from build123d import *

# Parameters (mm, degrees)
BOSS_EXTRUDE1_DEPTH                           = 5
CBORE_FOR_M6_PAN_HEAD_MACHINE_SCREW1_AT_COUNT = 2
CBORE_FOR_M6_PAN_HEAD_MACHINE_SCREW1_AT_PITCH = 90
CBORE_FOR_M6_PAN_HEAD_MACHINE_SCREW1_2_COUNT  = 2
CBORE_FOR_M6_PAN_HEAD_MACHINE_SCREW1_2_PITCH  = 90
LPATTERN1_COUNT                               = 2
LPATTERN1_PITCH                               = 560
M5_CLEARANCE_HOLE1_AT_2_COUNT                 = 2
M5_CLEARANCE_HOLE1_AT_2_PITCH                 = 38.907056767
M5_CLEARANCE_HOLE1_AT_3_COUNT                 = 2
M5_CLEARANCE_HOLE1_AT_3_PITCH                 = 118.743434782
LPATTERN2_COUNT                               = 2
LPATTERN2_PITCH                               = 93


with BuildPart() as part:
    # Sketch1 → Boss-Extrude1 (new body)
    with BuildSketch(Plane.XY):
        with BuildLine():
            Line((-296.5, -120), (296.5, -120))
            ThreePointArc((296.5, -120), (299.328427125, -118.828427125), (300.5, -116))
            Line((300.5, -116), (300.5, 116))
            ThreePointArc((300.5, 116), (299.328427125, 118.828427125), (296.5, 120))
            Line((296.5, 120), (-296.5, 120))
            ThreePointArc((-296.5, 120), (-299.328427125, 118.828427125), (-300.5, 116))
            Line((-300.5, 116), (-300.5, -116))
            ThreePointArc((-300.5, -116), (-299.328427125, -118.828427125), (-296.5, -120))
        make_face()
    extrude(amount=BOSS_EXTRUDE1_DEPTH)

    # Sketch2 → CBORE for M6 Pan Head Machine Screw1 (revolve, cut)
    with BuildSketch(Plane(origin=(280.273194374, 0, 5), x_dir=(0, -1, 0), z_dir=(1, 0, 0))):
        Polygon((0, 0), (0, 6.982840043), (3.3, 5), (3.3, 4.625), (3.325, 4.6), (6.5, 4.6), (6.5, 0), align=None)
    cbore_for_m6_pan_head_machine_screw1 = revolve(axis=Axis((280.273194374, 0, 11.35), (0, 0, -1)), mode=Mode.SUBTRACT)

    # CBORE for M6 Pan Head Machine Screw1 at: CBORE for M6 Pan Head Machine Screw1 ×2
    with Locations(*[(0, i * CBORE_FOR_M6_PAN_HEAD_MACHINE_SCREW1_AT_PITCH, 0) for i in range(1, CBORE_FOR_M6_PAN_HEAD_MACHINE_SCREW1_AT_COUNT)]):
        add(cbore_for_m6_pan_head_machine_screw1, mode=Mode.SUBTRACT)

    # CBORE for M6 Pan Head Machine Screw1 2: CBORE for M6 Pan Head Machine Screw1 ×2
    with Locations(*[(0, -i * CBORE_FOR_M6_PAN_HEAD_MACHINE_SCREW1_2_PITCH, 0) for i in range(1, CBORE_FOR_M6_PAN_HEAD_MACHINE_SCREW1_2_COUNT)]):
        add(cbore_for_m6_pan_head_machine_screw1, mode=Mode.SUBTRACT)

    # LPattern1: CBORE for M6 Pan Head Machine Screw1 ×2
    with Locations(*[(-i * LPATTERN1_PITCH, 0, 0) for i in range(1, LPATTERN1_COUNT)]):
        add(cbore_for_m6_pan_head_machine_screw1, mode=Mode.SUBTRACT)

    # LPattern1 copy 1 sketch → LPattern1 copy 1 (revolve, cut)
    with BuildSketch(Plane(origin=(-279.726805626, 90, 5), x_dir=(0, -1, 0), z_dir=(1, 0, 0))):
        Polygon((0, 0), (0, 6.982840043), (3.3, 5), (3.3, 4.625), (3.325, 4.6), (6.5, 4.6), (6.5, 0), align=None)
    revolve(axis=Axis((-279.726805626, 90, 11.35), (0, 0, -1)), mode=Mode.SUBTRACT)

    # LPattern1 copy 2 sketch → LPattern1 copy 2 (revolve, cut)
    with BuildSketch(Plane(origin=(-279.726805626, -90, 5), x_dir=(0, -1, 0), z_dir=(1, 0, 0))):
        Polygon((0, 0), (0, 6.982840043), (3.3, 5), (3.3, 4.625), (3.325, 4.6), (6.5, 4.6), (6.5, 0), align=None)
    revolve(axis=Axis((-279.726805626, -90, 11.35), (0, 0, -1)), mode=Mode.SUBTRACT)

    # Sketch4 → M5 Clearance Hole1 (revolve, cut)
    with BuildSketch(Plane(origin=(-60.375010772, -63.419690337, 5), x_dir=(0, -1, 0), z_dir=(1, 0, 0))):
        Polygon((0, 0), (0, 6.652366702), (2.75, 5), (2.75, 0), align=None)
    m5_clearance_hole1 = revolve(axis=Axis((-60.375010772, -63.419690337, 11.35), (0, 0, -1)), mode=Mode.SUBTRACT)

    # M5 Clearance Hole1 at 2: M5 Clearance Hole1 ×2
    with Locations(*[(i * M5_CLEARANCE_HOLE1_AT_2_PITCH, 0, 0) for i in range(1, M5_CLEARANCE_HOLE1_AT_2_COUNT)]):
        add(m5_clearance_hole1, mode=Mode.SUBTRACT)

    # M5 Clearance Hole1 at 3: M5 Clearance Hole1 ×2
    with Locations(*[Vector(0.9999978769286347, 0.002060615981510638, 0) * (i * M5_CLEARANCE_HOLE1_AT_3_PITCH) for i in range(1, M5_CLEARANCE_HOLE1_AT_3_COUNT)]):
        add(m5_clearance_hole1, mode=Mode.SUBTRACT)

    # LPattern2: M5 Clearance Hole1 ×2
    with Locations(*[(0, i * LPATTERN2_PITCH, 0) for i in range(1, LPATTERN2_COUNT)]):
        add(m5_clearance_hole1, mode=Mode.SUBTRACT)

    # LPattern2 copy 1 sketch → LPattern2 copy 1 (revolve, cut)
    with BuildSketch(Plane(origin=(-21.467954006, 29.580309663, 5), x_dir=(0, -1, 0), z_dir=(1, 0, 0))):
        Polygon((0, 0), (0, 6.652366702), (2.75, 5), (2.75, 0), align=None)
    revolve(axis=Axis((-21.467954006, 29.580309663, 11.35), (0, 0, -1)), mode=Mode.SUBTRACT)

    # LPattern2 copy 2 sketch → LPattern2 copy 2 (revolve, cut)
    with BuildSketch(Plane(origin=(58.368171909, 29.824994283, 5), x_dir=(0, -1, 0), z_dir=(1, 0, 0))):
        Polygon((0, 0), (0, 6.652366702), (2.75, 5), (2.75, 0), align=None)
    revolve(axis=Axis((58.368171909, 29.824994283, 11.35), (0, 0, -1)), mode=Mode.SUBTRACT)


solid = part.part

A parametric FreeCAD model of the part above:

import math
import FreeCAD as App
import Part
import Sketcher

V = App.Vector
Q = App.Units.Quantity

doc = App.newDocument("Part")
params = doc.addObject("Spreadsheet::Sheet", "Params")
for row, (alias, value) in enumerate([
    ("sketch1_radius", "4 mm"),
    ("sketch1_width", "593 mm"),
    ("sketch1_height", "232 mm"),
    ("pad1_length", "5 mm"),
    ("sketch2_width", "6.5 mm"),
    ("sketch2_height", "4.6 mm"),
    ("groove_angle", "360 deg"),
    ("linearpattern_pitch", "90 mm"),
    ("linearpattern2_pitch", "90 mm"),
    ("linearpattern3_pitch", "560 mm"),
    ("sketch3_width", "6.5 mm"),
    ("sketch3_height", "4.6 mm"),
    ("groove2_angle", "360 deg"),
    ("sketch4_width", "6.5 mm"),
    ("sketch4_height", "4.6 mm"),
    ("groove3_angle", "360 deg"),
    ("sketch5_height", "5 mm"),
    ("sketch5_width", "2.75 mm"),
    ("groove4_angle", "360 deg"),
    ("linearpattern4_pitch", "38.907057 mm"),
    ("linearpattern5_pitch", "118.743435 mm"),
    ("linearpattern6_pitch", "93 mm"),
    ("sketch6_height", "5 mm"),
    ("sketch6_width", "2.75 mm"),
    ("groove5_angle", "360 deg"),
    ("sketch7_height", "5 mm"),
    ("sketch7_width", "2.75 mm"),
    ("groove6_angle", "360 deg"),
], start=1):
    params.set(f"A{row}", alias)
    params.set(f"B{row}", "=" + value)
    params.setAlias(f"B{row}", alias)

body = doc.addObject("PartDesign::Body", "Body")

# Sketch on XY plane
sketch1 = doc.addObject("Sketcher::SketchObject", "Sketch")
body.addObject(sketch1)
sketch1.AttachmentSupport = (doc.XY_Plane, [""])
sketch1.MapMode = "FlatFace"
sketch1.addGeometry(Part.LineSegment(V(-296.5, -120, 0), V(296.5, -120, 0)), False)
sketch1.addGeometry(Part.ArcOfCircle(Part.Circle(V(296.5, -116, 0), V(0, 0, 1), 4), math.radians(-90), math.radians(0)), False)
sketch1.addGeometry(Part.LineSegment(V(300.5, -116, 0), V(300.5, 116, 0)), False)
sketch1.addGeometry(Part.ArcOfCircle(Part.Circle(V(296.5, 116, 0), V(0, 0, 1), 4), math.radians(0), math.radians(90)), False)
sketch1.addGeometry(Part.LineSegment(V(296.5, 120, 0), V(-296.5, 120, 0)), False)
sketch1.addGeometry(Part.ArcOfCircle(Part.Circle(V(-296.5, 116, 0), V(0, 0, 1), 4), math.radians(90), math.radians(180)), False)
sketch1.addGeometry(Part.LineSegment(V(-300.5, 116, 0), V(-300.5, -116, 0)), False)
sketch1.addGeometry(Part.ArcOfCircle(Part.Circle(V(-296.5, -116, 0), V(0, 0, 1), 4), math.radians(180), math.radians(270)), False)
sketch1.addConstraint(Sketcher.Constraint("Tangent", 0, 2, 1, 1))
sketch1.addConstraint(Sketcher.Constraint("Tangent", 1, 2, 2, 1))
sketch1.addConstraint(Sketcher.Constraint("Tangent", 2, 2, 3, 1))
sketch1.addConstraint(Sketcher.Constraint("Tangent", 3, 2, 4, 1))
sketch1.addConstraint(Sketcher.Constraint("Tangent", 4, 2, 5, 1))
sketch1.addConstraint(Sketcher.Constraint("Tangent", 5, 2, 6, 1))
sketch1.addConstraint(Sketcher.Constraint("Tangent", 6, 2, 7, 1))
sketch1.addConstraint(Sketcher.Constraint("Tangent", 7, 2, 0, 1))
sketch1.addConstraint(Sketcher.Constraint("Horizontal", 0))
sketch1.addConstraint(Sketcher.Constraint("Vertical", 2))
sketch1.addConstraint(Sketcher.Constraint("Horizontal", 4))
sketch1.addConstraint(Sketcher.Constraint("Vertical", 6))
sketch1.addConstraint(Sketcher.Constraint("Equal", 1, 3))
sketch1.addConstraint(Sketcher.Constraint("Equal", 3, 5))
sketch1.addConstraint(Sketcher.Constraint("Equal", 5, 7))
sketch1.addConstraint(Sketcher.Constraint("Symmetric", 1, 3, 5, 3, -1, 1))
sketch1.addConstraint(Sketcher.Constraint("Radius", 1, 4.0))
sketch1.addConstraint(Sketcher.Constraint("DistanceX", 0, 1, 0, 2, 593.0))
sketch1.addConstraint(Sketcher.Constraint("DistanceY", 2, 1, 2, 2, 232.0))
sketch1.setExpression("Constraints[16]", "Params.sketch1_radius")
sketch1.setExpression("Constraints[17]", "Params.sketch1_width")
sketch1.setExpression("Constraints[18]", "Params.sketch1_height")
pad1 = doc.addObject("PartDesign::Pad", "Pad")
body.addObject(pad1)
pad1.Profile = sketch1
pad1.setExpression("Length", "Params.pad1_length")

# Sketch on YZ plane
sketch2 = doc.addObject("Sketcher::SketchObject", "Sketch001")
body.addObject(sketch2)
sketch2.AttachmentSupport = (doc.YZ_Plane, [""])
sketch2.MapMode = "FlatFace"
sketch2.AttachmentOffset = App.Placement(V(0, 0, 280.273194), App.Rotation())
sketch2.addGeometry(Part.LineSegment(V(0, -1.983, 0), V(0, 5, 0)), False)
sketch2.addGeometry(Part.LineSegment(V(0, 5, 0), V(-6.5, 5, 0)), False)
sketch2.addGeometry(Part.LineSegment(V(-6.5, 5, 0), V(-6.5, 0.4, 0)), False)
sketch2.addGeometry(Part.LineSegment(V(-6.5, 0.4, 0), V(-3.325, 0.4, 0)), False)
sketch2.addGeometry(Part.LineSegment(V(-3.325, 0.4, 0), V(-3.3, 0.375, 0)), False)
sketch2.addGeometry(Part.LineSegment(V(-3.3, 0.375, 0), V(-3.3, 0, 0)), False)
sketch2.addGeometry(Part.LineSegment(V(-3.3, 0, 0), V(0, -1.983, 0)), False)
sketch2.addConstraint(Sketcher.Constraint("Coincident", 0, 2, 1, 1))
sketch2.addConstraint(Sketcher.Constraint("Coincident", 1, 2, 2, 1))
sketch2.addConstraint(Sketcher.Constraint("Coincident", 2, 2, 3, 1))
sketch2.addConstraint(Sketcher.Constraint("Coincident", 3, 2, 4, 1))
sketch2.addConstraint(Sketcher.Constraint("Coincident", 4, 2, 5, 1))
sketch2.addConstraint(Sketcher.Constraint("Coincident", 5, 2, 6, 1))
sketch2.addConstraint(Sketcher.Constraint("Coincident", 6, 2, 0, 1))
sketch2.addConstraint(Sketcher.Constraint("Vertical", 0))
sketch2.addConstraint(Sketcher.Constraint("Horizontal", 1))
sketch2.addConstraint(Sketcher.Constraint("Vertical", 2))
sketch2.addConstraint(Sketcher.Constraint("Horizontal", 3))
sketch2.addConstraint(Sketcher.Constraint("Vertical", 5))
sketch2.addConstraint(Sketcher.Constraint("PointOnObject", 0, 2, -2))
sketch2.addConstraint(Sketcher.Constraint("PointOnObject", 5, 2, -1))
sketch2.addConstraint(Sketcher.Constraint("Angle", 4, Q("-45 deg")))
sketch2.addConstraint(Sketcher.Constraint("Angle", 6, Q("-31 deg")))
sketch2.addConstraint(Sketcher.Constraint("DistanceX", 1, 2, 1, 1, 6.5))
sketch2.addConstraint(Sketcher.Constraint("DistanceY", 2, 2, 2, 1, 4.6))
sketch2.addConstraint(Sketcher.Constraint("DistanceY", -1, 1, 0, 2, 5.0))
sketch2.addConstraint(Sketcher.Constraint("DistanceX", 4, 2, -1, 1, 3.3))
sketch2.addConstraint(Sketcher.Constraint("DistanceX", 3, 1, 3, 2, 3.175))
sketch2.setExpression("Constraints[16]", "Params.sketch2_width")
sketch2.setExpression("Constraints[17]", "Params.sketch2_height")
groove = doc.addObject("PartDesign::Groove", "Groove")
body.addObject(groove)
groove.Profile = sketch2
groove.ReferenceAxis = (sketch2, ["V_Axis"])
groove.setExpression("Angle", "Params.groove_angle")
doc.recompute()

linearpattern = doc.addObject("PartDesign::LinearPattern", "LinearPattern")
body.addObject(linearpattern)
linearpattern.Originals = [groove]
linearpattern.Direction = (doc.Y_Axis, [""])
linearpattern.Mode = "offset"
linearpattern.setExpression("Offset", "Params.linearpattern_pitch")
linearpattern.Occurrences = 2
body.Tip = linearpattern
doc.recompute()

linearpattern2 = doc.addObject("PartDesign::LinearPattern", "LinearPattern001")
body.addObject(linearpattern2)
linearpattern2.Originals = [groove]
linearpattern2.Direction = (doc.Y_Axis, [""])
linearpattern2.Mode = "offset"
linearpattern2.setExpression("Offset", "Params.linearpattern2_pitch")
linearpattern2.Occurrences = 2
linearpattern2.Reversed = True
body.Tip = linearpattern2
doc.recompute()

linearpattern3 = doc.addObject("PartDesign::LinearPattern", "LinearPattern002")
body.addObject(linearpattern3)
linearpattern3.Originals = [groove]
linearpattern3.Direction = (doc.X_Axis, [""])
linearpattern3.Mode = "offset"
linearpattern3.setExpression("Offset", "Params.linearpattern3_pitch")
linearpattern3.Occurrences = 2
linearpattern3.Reversed = True
body.Tip = linearpattern3

# Sketch on YZ plane
sketch3 = doc.addObject("Sketcher::SketchObject", "Sketch002")
body.addObject(sketch3)
sketch3.AttachmentSupport = (doc.YZ_Plane, [""])
sketch3.MapMode = "FlatFace"
sketch3.AttachmentOffset = App.Placement(V(0, 0, -279.726806), App.Rotation())
sketch3.addGeometry(Part.LineSegment(V(90, -1.983, 0), V(90, 5, 0)), False)
sketch3.addGeometry(Part.LineSegment(V(90, 5, 0), V(83.5, 5, 0)), False)
sketch3.addGeometry(Part.LineSegment(V(83.5, 5, 0), V(83.5, 0.4, 0)), False)
sketch3.addGeometry(Part.LineSegment(V(83.5, 0.4, 0), V(86.675, 0.4, 0)), False)
sketch3.addGeometry(Part.LineSegment(V(86.675, 0.4, 0), V(86.7, 0.375, 0)), False)
sketch3.addGeometry(Part.LineSegment(V(86.7, 0.375, 0), V(86.7, 0, 0)), False)
sketch3.addGeometry(Part.LineSegment(V(86.7, 0, 0), V(90, -1.983, 0)), False)
sketch3.addGeometry(Part.LineSegment(V(90, 5, 0), V(90, -1.983, 0)), True)  # axis
sketch3.addConstraint(Sketcher.Constraint("Coincident", 0, 2, 1, 1))
sketch3.addConstraint(Sketcher.Constraint("Coincident", 1, 2, 2, 1))
sketch3.addConstraint(Sketcher.Constraint("Coincident", 2, 2, 3, 1))
sketch3.addConstraint(Sketcher.Constraint("Coincident", 3, 2, 4, 1))
sketch3.addConstraint(Sketcher.Constraint("Coincident", 4, 2, 5, 1))
sketch3.addConstraint(Sketcher.Constraint("Coincident", 5, 2, 6, 1))
sketch3.addConstraint(Sketcher.Constraint("Coincident", 6, 2, 0, 1))
sketch3.addConstraint(Sketcher.Constraint("Vertical", 0))
sketch3.addConstraint(Sketcher.Constraint("Horizontal", 1))
sketch3.addConstraint(Sketcher.Constraint("Vertical", 2))
sketch3.addConstraint(Sketcher.Constraint("Horizontal", 3))
sketch3.addConstraint(Sketcher.Constraint("Vertical", 5))
sketch3.addConstraint(Sketcher.Constraint("Vertical", 7))
sketch3.addConstraint(Sketcher.Constraint("Coincident", 7, 1, 0, 2))
sketch3.addConstraint(Sketcher.Constraint("PointOnObject", 5, 2, -1))
sketch3.addConstraint(Sketcher.Constraint("Equal", 0, 7))
sketch3.addConstraint(Sketcher.Constraint("Angle", 4, Q("-45 deg")))
sketch3.addConstraint(Sketcher.Constraint("Angle", 6, Q("-31 deg")))
sketch3.addConstraint(Sketcher.Constraint("DistanceX", 1, 2, 1, 1, 6.5))
sketch3.addConstraint(Sketcher.Constraint("DistanceY", 2, 2, 2, 1, 4.6))
sketch3.addConstraint(Sketcher.Constraint("DistanceX", -1, 1, 0, 2, 90.0))
sketch3.addConstraint(Sketcher.Constraint("DistanceY", -1, 1, 0, 2, 5.0))
sketch3.addConstraint(Sketcher.Constraint("DistanceX", -1, 1, 4, 2, 86.7))
sketch3.addConstraint(Sketcher.Constraint("DistanceX", 3, 1, 3, 2, 3.175))
sketch3.setExpression("Constraints[18]", "Params.sketch3_width")
sketch3.setExpression("Constraints[19]", "Params.sketch3_height")
groove2 = doc.addObject("PartDesign::Groove", "Groove001")
body.addObject(groove2)
groove2.Profile = sketch3
groove2.ReferenceAxis = (sketch3, ["Axis0"])
groove2.setExpression("Angle", "Params.groove2_angle")

# Sketch on YZ plane
sketch4 = doc.addObject("Sketcher::SketchObject", "Sketch003")
body.addObject(sketch4)
sketch4.AttachmentSupport = (doc.YZ_Plane, [""])
sketch4.MapMode = "FlatFace"
sketch4.AttachmentOffset = App.Placement(V(0, 0, -279.726806), App.Rotation())
sketch4.addGeometry(Part.LineSegment(V(-90, -1.983, 0), V(-90, 5, 0)), False)
sketch4.addGeometry(Part.LineSegment(V(-90, 5, 0), V(-96.5, 5, 0)), False)
sketch4.addGeometry(Part.LineSegment(V(-96.5, 5, 0), V(-96.5, 0.4, 0)), False)
sketch4.addGeometry(Part.LineSegment(V(-96.5, 0.4, 0), V(-93.325, 0.4, 0)), False)
sketch4.addGeometry(Part.LineSegment(V(-93.325, 0.4, 0), V(-93.3, 0.375, 0)), False)
sketch4.addGeometry(Part.LineSegment(V(-93.3, 0.375, 0), V(-93.3, 0, 0)), False)
sketch4.addGeometry(Part.LineSegment(V(-93.3, 0, 0), V(-90, -1.983, 0)), False)
sketch4.addGeometry(Part.LineSegment(V(-90, 5, 0), V(-90, -1.983, 0)), True)  # axis
sketch4.addConstraint(Sketcher.Constraint("Coincident", 0, 2, 1, 1))
sketch4.addConstraint(Sketcher.Constraint("Coincident", 1, 2, 2, 1))
sketch4.addConstraint(Sketcher.Constraint("Coincident", 2, 2, 3, 1))
sketch4.addConstraint(Sketcher.Constraint("Coincident", 3, 2, 4, 1))
sketch4.addConstraint(Sketcher.Constraint("Coincident", 4, 2, 5, 1))
sketch4.addConstraint(Sketcher.Constraint("Coincident", 5, 2, 6, 1))
sketch4.addConstraint(Sketcher.Constraint("Coincident", 6, 2, 0, 1))
sketch4.addConstraint(Sketcher.Constraint("Vertical", 0))
sketch4.addConstraint(Sketcher.Constraint("Horizontal", 1))
sketch4.addConstraint(Sketcher.Constraint("Vertical", 2))
sketch4.addConstraint(Sketcher.Constraint("Horizontal", 3))
sketch4.addConstraint(Sketcher.Constraint("Vertical", 5))
sketch4.addConstraint(Sketcher.Constraint("Vertical", 7))
sketch4.addConstraint(Sketcher.Constraint("Coincident", 7, 1, 0, 2))
sketch4.addConstraint(Sketcher.Constraint("PointOnObject", 5, 2, -1))
sketch4.addConstraint(Sketcher.Constraint("Equal", 0, 7))
sketch4.addConstraint(Sketcher.Constraint("Angle", 4, Q("-45 deg")))
sketch4.addConstraint(Sketcher.Constraint("Angle", 6, Q("-31 deg")))
sketch4.addConstraint(Sketcher.Constraint("DistanceX", 1, 2, 1, 1, 6.5))
sketch4.addConstraint(Sketcher.Constraint("DistanceY", 2, 2, 2, 1, 4.6))
sketch4.addConstraint(Sketcher.Constraint("DistanceX", 0, 2, -1, 1, 90.0))
sketch4.addConstraint(Sketcher.Constraint("DistanceY", -1, 1, 0, 2, 5.0))
sketch4.addConstraint(Sketcher.Constraint("DistanceX", 4, 2, -1, 1, 93.3))
sketch4.addConstraint(Sketcher.Constraint("DistanceX", 3, 1, 3, 2, 3.175))
sketch4.setExpression("Constraints[18]", "Params.sketch4_width")
sketch4.setExpression("Constraints[19]", "Params.sketch4_height")
groove3 = doc.addObject("PartDesign::Groove", "Groove002")
body.addObject(groove3)
groove3.Profile = sketch4
groove3.ReferenceAxis = (sketch4, ["Axis0"])
groove3.setExpression("Angle", "Params.groove3_angle")

# Sketch on YZ plane
sketch5 = doc.addObject("Sketcher::SketchObject", "Sketch004")
body.addObject(sketch5)
sketch5.AttachmentSupport = (doc.YZ_Plane, [""])
sketch5.MapMode = "FlatFace"
sketch5.AttachmentOffset = App.Placement(V(0, 0, -60.375011), App.Rotation())
sketch5.addGeometry(Part.LineSegment(V(-63.4, -1.7, 0), V(-63.4, 5, 0)), False)
sketch5.addGeometry(Part.LineSegment(V(-63.4, 5, 0), V(-66.2, 5, 0)), False)
sketch5.addGeometry(Part.LineSegment(V(-66.2, 5, 0), V(-66.2, 0, 0)), False)
sketch5.addGeometry(Part.LineSegment(V(-66.2, 0, 0), V(-63.4, -1.7, 0)), False)
sketch5.addGeometry(Part.LineSegment(V(-63.4, 5, 0), V(-63.4, -1.7, 0)), True)  # axis
sketch5.addConstraint(Sketcher.Constraint("Coincident", 0, 2, 1, 1))
sketch5.addConstraint(Sketcher.Constraint("Coincident", 1, 2, 2, 1))
sketch5.addConstraint(Sketcher.Constraint("Coincident", 2, 2, 3, 1))
sketch5.addConstraint(Sketcher.Constraint("Coincident", 3, 2, 0, 1))
sketch5.addConstraint(Sketcher.Constraint("Vertical", 0))
sketch5.addConstraint(Sketcher.Constraint("Horizontal", 1))
sketch5.addConstraint(Sketcher.Constraint("Vertical", 2))
sketch5.addConstraint(Sketcher.Constraint("Vertical", 4))
sketch5.addConstraint(Sketcher.Constraint("Coincident", 4, 1, 0, 2))
sketch5.addConstraint(Sketcher.Constraint("PointOnObject", 2, 2, -1))
sketch5.addConstraint(Sketcher.Constraint("Equal", 0, 4))
sketch5.addConstraint(Sketcher.Constraint("DistanceY", 2, 2, 2, 1, 5.0))
sketch5.addConstraint(Sketcher.Constraint("Angle", 3, Q("-31 deg")))
sketch5.addConstraint(Sketcher.Constraint("DistanceX", 1, 2, 1, 1, 2.75))
sketch5.addConstraint(Sketcher.Constraint("DistanceX", 0, 2, -1, 1, 63.41969))
sketch5.setExpression("Constraints[11]", "Params.sketch5_height")
sketch5.setExpression("Constraints[13]", "Params.sketch5_width")
groove4 = doc.addObject("PartDesign::Groove", "Groove003")
body.addObject(groove4)
groove4.Profile = sketch5
groove4.ReferenceAxis = (sketch5, ["Axis0"])
groove4.setExpression("Angle", "Params.groove4_angle")
doc.recompute()

linearpattern4 = doc.addObject("PartDesign::LinearPattern", "LinearPattern003")
body.addObject(linearpattern4)
linearpattern4.Originals = [groove4]
linearpattern4.Direction = (doc.X_Axis, [""])
linearpattern4.Mode = "offset"
linearpattern4.setExpression("Offset", "Params.linearpattern4_pitch")
linearpattern4.Occurrences = 2
body.Tip = linearpattern4
doc.recompute()

datumline = doc.addObject("PartDesign::Line", "DatumLine")
body.addObject(datumline)
datumline.Placement = App.Placement(V(0, 0, 0), App.Rotation(V(0, 0, 1), V(0.999997877, 0.002060616, 0)))
linearpattern5 = doc.addObject("PartDesign::LinearPattern", "LinearPattern004")
body.addObject(linearpattern5)
linearpattern5.Originals = [groove4]
linearpattern5.Direction = (datumline, [""])
linearpattern5.Mode = "offset"
linearpattern5.setExpression("Offset", "Params.linearpattern5_pitch")
linearpattern5.Occurrences = 2
body.Tip = linearpattern5
doc.recompute()

linearpattern6 = doc.addObject("PartDesign::LinearPattern", "LinearPattern005")
body.addObject(linearpattern6)
linearpattern6.Originals = [groove4]
linearpattern6.Direction = (doc.Y_Axis, [""])
linearpattern6.Mode = "offset"
linearpattern6.setExpression("Offset", "Params.linearpattern6_pitch")
linearpattern6.Occurrences = 2
body.Tip = linearpattern6

# Sketch on YZ plane
sketch6 = doc.addObject("Sketcher::SketchObject", "Sketch005")
body.addObject(sketch6)
sketch6.AttachmentSupport = (doc.YZ_Plane, [""])
sketch6.MapMode = "FlatFace"
sketch6.AttachmentOffset = App.Placement(V(0, 0, -21.467954), App.Rotation())
sketch6.addGeometry(Part.LineSegment(V(29.6, -1.7, 0), V(29.6, 5, 0)), False)
sketch6.addGeometry(Part.LineSegment(V(29.6, 5, 0), V(26.8, 5, 0)), False)
sketch6.addGeometry(Part.LineSegment(V(26.8, 5, 0), V(26.8, 0, 0)), False)
sketch6.addGeometry(Part.LineSegment(V(26.8, 0, 0), V(29.6, -1.7, 0)), False)
sketch6.addGeometry(Part.LineSegment(V(29.6, 5, 0), V(29.6, -1.7, 0)), True)  # axis
sketch6.addConstraint(Sketcher.Constraint("Coincident", 0, 2, 1, 1))
sketch6.addConstraint(Sketcher.Constraint("Coincident", 1, 2, 2, 1))
sketch6.addConstraint(Sketcher.Constraint("Coincident", 2, 2, 3, 1))
sketch6.addConstraint(Sketcher.Constraint("Coincident", 3, 2, 0, 1))
sketch6.addConstraint(Sketcher.Constraint("Vertical", 0))
sketch6.addConstraint(Sketcher.Constraint("Horizontal", 1))
sketch6.addConstraint(Sketcher.Constraint("Vertical", 2))
sketch6.addConstraint(Sketcher.Constraint("Vertical", 4))
sketch6.addConstraint(Sketcher.Constraint("Coincident", 4, 1, 0, 2))
sketch6.addConstraint(Sketcher.Constraint("PointOnObject", 2, 2, -1))
sketch6.addConstraint(Sketcher.Constraint("Equal", 0, 4))
sketch6.addConstraint(Sketcher.Constraint("DistanceY", 2, 2, 2, 1, 5.0))
sketch6.addConstraint(Sketcher.Constraint("Angle", 3, Q("-31 deg")))
sketch6.addConstraint(Sketcher.Constraint("DistanceX", 1, 2, 1, 1, 2.75))
sketch6.addConstraint(Sketcher.Constraint("DistanceX", -1, 1, 0, 2, 29.58031))
sketch6.setExpression("Constraints[11]", "Params.sketch6_height")
sketch6.setExpression("Constraints[13]", "Params.sketch6_width")
groove5 = doc.addObject("PartDesign::Groove", "Groove004")
body.addObject(groove5)
groove5.Profile = sketch6
groove5.ReferenceAxis = (sketch6, ["Axis0"])
groove5.setExpression("Angle", "Params.groove5_angle")

# Sketch on YZ plane
sketch7 = doc.addObject("Sketcher::SketchObject", "Sketch006")
body.addObject(sketch7)
sketch7.AttachmentSupport = (doc.YZ_Plane, [""])
sketch7.MapMode = "FlatFace"
sketch7.AttachmentOffset = App.Placement(V(0, 0, 58.368172), App.Rotation())
sketch7.addGeometry(Part.LineSegment(V(29.8, -1.7, 0), V(29.8, 5, 0)), False)
sketch7.addGeometry(Part.LineSegment(V(29.8, 5, 0), V(27.1, 5, 0)), False)
sketch7.addGeometry(Part.LineSegment(V(27.1, 5, 0), V(27.1, 0, 0)), False)
sketch7.addGeometry(Part.LineSegment(V(27.1, 0, 0), V(29.8, -1.7, 0)), False)
sketch7.addGeometry(Part.LineSegment(V(29.8, 5, 0), V(29.8, -1.7, 0)), True)  # axis
sketch7.addConstraint(Sketcher.Constraint("Coincident", 0, 2, 1, 1))
sketch7.addConstraint(Sketcher.Constraint("Coincident", 1, 2, 2, 1))
sketch7.addConstraint(Sketcher.Constraint("Coincident", 2, 2, 3, 1))
sketch7.addConstraint(Sketcher.Constraint("Coincident", 3, 2, 0, 1))
sketch7.addConstraint(Sketcher.Constraint("Vertical", 0))
sketch7.addConstraint(Sketcher.Constraint("Horizontal", 1))
sketch7.addConstraint(Sketcher.Constraint("Vertical", 2))
sketch7.addConstraint(Sketcher.Constraint("Vertical", 4))
sketch7.addConstraint(Sketcher.Constraint("Coincident", 4, 1, 0, 2))
sketch7.addConstraint(Sketcher.Constraint("PointOnObject", 2, 2, -1))
sketch7.addConstraint(Sketcher.Constraint("Equal", 0, 4))
sketch7.addConstraint(Sketcher.Constraint("DistanceY", 2, 2, 2, 1, 5.0))
sketch7.addConstraint(Sketcher.Constraint("Angle", 3, Q("-31 deg")))
sketch7.addConstraint(Sketcher.Constraint("DistanceX", 1, 2, 1, 1, 2.75))
sketch7.addConstraint(Sketcher.Constraint("DistanceX", -1, 1, 0, 2, 29.824994))
sketch7.setExpression("Constraints[11]", "Params.sketch7_height")
sketch7.setExpression("Constraints[13]", "Params.sketch7_width")
groove6 = doc.addObject("PartDesign::Groove", "Groove005")
body.addObject(groove6)
groove6.Profile = sketch7
groove6.ReferenceAxis = (sketch7, ["Axis0"])
groove6.setExpression("Angle", "Params.groove6_angle")

doc.recompute()
